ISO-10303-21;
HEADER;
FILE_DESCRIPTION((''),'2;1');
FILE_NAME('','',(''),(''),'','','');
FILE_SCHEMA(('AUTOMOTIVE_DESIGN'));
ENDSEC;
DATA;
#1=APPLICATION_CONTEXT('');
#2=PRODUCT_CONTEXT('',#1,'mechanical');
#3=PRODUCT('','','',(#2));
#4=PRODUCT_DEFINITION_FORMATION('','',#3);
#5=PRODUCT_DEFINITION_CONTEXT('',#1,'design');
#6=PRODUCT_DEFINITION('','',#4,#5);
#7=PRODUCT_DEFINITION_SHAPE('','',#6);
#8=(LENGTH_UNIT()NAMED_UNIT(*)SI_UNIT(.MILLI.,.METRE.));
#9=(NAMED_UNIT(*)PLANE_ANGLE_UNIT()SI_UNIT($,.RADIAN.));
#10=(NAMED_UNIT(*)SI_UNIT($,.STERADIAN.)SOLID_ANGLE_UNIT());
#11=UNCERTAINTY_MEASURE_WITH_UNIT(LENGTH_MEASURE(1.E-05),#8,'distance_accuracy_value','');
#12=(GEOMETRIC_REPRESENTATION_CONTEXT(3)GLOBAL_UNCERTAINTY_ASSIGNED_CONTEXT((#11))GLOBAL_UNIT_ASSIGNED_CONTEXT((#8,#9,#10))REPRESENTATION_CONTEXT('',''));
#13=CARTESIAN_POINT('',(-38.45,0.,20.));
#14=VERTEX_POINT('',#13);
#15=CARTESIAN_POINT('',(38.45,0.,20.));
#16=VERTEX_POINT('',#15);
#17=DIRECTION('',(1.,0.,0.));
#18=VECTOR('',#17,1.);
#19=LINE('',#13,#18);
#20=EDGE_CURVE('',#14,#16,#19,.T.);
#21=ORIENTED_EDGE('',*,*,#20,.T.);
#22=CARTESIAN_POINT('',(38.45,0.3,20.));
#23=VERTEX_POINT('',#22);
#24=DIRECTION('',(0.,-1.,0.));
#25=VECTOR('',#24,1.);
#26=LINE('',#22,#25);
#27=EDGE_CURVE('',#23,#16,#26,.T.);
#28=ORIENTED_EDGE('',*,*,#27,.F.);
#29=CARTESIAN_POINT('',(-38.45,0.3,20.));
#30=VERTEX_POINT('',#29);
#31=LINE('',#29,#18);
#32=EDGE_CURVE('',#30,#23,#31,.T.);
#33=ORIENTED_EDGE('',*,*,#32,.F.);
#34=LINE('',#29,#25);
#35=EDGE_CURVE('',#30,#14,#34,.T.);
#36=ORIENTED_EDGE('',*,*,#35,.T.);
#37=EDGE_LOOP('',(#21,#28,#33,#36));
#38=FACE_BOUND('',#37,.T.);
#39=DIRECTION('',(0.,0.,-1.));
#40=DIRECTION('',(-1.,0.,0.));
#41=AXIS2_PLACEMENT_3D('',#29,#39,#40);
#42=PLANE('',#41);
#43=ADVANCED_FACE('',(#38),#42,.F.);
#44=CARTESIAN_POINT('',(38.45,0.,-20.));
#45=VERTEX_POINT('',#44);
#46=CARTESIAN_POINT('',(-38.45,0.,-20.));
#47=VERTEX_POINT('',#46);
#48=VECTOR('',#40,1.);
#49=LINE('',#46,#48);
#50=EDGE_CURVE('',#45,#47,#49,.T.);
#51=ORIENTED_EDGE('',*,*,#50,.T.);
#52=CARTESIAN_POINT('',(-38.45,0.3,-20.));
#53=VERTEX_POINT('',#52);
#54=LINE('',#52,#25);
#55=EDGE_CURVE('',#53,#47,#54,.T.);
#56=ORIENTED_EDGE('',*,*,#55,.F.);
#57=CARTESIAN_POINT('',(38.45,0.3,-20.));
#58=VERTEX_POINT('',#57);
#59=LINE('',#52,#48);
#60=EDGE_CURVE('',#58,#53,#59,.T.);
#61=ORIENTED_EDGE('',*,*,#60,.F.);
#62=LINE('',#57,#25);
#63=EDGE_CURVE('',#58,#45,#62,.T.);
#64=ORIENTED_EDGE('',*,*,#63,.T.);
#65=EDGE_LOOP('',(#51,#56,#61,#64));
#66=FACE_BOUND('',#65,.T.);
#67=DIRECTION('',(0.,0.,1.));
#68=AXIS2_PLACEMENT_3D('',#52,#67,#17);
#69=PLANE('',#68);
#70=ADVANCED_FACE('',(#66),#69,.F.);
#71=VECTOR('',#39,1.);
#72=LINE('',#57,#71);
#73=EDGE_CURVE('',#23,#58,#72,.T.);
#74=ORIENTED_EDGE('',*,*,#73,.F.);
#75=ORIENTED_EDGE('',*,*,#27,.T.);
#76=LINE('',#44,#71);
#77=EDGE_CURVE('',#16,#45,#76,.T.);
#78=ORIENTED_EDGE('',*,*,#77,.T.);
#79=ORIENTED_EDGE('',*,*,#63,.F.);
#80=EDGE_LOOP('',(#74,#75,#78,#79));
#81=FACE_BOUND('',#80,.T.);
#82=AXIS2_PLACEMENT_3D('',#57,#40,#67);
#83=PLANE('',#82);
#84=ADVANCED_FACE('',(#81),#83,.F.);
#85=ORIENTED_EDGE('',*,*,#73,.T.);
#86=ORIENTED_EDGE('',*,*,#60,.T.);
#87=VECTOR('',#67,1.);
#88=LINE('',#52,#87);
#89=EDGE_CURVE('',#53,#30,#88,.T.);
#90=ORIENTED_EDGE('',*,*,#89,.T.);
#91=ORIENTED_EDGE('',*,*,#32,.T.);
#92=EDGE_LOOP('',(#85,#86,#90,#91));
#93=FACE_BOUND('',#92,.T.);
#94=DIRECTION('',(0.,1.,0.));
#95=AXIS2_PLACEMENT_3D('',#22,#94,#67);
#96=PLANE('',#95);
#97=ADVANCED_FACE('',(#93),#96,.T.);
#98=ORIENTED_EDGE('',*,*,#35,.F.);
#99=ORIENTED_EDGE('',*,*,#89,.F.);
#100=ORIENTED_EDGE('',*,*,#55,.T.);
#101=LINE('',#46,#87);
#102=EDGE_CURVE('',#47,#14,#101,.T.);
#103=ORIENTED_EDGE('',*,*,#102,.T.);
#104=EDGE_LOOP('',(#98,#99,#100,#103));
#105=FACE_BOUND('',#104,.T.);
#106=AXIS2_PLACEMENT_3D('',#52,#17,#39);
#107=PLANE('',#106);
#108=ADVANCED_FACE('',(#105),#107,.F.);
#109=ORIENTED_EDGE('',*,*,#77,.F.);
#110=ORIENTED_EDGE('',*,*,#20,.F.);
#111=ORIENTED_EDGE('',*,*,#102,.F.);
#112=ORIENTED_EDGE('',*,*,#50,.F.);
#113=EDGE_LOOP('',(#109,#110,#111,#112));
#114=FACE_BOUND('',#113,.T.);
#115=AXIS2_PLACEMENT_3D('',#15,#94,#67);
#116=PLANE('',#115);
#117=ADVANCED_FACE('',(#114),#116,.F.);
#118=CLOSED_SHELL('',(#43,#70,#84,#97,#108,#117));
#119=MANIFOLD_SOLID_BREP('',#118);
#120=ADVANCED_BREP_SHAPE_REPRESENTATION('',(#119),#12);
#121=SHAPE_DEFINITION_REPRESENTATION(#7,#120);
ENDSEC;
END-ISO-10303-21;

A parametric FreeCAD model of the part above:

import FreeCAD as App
import Part
import Sketcher
from FreeCAD import Vector
Q = App.Units.Quantity


def add_polygon(sketch, points):
    """Adds a closed chain of lines whose ends are joined by coincident constraints."""
    first, n = sketch.GeometryCount, len(points)
    for a, b in zip(points, points[1:] + points[:1]):
        sketch.addGeometry(Part.LineSegment(App.Vector(*a, 0), App.Vector(*b, 0)), False)
    for i in range(n):
        sketch.addConstraint(Sketcher.Constraint("Coincident", first + i, 2, first + (i + 1) % n, 1))

doc = App.newDocument("Part")
params = doc.addObject("Spreadsheet::Sheet", "Params")
for row, (alias, value) in enumerate([
    ("sketch1_height", "40 mm"),
    ("sketch1_width", "76.9 mm"),
    ("pad1_length", "0.3 mm"),
], start=1):
    params.set(f"A{row}", alias)
    params.set(f"B{row}", "=" + value)
    params.setAlias(f"B{row}", alias)

body = doc.addObject("PartDesign::Body", "Body")

sketch1 = body.newObject("Sketcher::SketchObject", "Sketch")
sketch1.AttachmentSupport = (doc.getObject("XZ_Plane"), [""])
sketch1.MapMode = "FlatFace"
add_polygon(sketch1, [(-38, -20), (-38, 20), (38, 20), (38, -20)])
sketch1.addConstraint([
    Sketcher.Constraint("Vertical", 0),
    Sketcher.Constraint("Horizontal", 1),
    Sketcher.Constraint("Vertical", 2),
    Sketcher.Constraint("Horizontal", 3),
    Sketcher.Constraint("Symmetric", 0, 2, 2, 2, -1, 1),
    Sketcher.Constraint("DistanceY", 0, 1, 0, 2, Q("40 mm")),
    Sketcher.Constraint("DistanceX", 1, 1, 1, 2, Q("76.9 mm")),
])
sketch1.setExpression("Constraints[9]", "Params.sketch1_height")
sketch1.setExpression("Constraints[10]", "Params.sketch1_width")
pad1 = body.newObject("PartDesign::Pad", "Pad")
pad1.Profile = sketch1
pad1.setExpression("Length", "Params.pad1_length")
pad1.Reversed = True

doc.recompute()
